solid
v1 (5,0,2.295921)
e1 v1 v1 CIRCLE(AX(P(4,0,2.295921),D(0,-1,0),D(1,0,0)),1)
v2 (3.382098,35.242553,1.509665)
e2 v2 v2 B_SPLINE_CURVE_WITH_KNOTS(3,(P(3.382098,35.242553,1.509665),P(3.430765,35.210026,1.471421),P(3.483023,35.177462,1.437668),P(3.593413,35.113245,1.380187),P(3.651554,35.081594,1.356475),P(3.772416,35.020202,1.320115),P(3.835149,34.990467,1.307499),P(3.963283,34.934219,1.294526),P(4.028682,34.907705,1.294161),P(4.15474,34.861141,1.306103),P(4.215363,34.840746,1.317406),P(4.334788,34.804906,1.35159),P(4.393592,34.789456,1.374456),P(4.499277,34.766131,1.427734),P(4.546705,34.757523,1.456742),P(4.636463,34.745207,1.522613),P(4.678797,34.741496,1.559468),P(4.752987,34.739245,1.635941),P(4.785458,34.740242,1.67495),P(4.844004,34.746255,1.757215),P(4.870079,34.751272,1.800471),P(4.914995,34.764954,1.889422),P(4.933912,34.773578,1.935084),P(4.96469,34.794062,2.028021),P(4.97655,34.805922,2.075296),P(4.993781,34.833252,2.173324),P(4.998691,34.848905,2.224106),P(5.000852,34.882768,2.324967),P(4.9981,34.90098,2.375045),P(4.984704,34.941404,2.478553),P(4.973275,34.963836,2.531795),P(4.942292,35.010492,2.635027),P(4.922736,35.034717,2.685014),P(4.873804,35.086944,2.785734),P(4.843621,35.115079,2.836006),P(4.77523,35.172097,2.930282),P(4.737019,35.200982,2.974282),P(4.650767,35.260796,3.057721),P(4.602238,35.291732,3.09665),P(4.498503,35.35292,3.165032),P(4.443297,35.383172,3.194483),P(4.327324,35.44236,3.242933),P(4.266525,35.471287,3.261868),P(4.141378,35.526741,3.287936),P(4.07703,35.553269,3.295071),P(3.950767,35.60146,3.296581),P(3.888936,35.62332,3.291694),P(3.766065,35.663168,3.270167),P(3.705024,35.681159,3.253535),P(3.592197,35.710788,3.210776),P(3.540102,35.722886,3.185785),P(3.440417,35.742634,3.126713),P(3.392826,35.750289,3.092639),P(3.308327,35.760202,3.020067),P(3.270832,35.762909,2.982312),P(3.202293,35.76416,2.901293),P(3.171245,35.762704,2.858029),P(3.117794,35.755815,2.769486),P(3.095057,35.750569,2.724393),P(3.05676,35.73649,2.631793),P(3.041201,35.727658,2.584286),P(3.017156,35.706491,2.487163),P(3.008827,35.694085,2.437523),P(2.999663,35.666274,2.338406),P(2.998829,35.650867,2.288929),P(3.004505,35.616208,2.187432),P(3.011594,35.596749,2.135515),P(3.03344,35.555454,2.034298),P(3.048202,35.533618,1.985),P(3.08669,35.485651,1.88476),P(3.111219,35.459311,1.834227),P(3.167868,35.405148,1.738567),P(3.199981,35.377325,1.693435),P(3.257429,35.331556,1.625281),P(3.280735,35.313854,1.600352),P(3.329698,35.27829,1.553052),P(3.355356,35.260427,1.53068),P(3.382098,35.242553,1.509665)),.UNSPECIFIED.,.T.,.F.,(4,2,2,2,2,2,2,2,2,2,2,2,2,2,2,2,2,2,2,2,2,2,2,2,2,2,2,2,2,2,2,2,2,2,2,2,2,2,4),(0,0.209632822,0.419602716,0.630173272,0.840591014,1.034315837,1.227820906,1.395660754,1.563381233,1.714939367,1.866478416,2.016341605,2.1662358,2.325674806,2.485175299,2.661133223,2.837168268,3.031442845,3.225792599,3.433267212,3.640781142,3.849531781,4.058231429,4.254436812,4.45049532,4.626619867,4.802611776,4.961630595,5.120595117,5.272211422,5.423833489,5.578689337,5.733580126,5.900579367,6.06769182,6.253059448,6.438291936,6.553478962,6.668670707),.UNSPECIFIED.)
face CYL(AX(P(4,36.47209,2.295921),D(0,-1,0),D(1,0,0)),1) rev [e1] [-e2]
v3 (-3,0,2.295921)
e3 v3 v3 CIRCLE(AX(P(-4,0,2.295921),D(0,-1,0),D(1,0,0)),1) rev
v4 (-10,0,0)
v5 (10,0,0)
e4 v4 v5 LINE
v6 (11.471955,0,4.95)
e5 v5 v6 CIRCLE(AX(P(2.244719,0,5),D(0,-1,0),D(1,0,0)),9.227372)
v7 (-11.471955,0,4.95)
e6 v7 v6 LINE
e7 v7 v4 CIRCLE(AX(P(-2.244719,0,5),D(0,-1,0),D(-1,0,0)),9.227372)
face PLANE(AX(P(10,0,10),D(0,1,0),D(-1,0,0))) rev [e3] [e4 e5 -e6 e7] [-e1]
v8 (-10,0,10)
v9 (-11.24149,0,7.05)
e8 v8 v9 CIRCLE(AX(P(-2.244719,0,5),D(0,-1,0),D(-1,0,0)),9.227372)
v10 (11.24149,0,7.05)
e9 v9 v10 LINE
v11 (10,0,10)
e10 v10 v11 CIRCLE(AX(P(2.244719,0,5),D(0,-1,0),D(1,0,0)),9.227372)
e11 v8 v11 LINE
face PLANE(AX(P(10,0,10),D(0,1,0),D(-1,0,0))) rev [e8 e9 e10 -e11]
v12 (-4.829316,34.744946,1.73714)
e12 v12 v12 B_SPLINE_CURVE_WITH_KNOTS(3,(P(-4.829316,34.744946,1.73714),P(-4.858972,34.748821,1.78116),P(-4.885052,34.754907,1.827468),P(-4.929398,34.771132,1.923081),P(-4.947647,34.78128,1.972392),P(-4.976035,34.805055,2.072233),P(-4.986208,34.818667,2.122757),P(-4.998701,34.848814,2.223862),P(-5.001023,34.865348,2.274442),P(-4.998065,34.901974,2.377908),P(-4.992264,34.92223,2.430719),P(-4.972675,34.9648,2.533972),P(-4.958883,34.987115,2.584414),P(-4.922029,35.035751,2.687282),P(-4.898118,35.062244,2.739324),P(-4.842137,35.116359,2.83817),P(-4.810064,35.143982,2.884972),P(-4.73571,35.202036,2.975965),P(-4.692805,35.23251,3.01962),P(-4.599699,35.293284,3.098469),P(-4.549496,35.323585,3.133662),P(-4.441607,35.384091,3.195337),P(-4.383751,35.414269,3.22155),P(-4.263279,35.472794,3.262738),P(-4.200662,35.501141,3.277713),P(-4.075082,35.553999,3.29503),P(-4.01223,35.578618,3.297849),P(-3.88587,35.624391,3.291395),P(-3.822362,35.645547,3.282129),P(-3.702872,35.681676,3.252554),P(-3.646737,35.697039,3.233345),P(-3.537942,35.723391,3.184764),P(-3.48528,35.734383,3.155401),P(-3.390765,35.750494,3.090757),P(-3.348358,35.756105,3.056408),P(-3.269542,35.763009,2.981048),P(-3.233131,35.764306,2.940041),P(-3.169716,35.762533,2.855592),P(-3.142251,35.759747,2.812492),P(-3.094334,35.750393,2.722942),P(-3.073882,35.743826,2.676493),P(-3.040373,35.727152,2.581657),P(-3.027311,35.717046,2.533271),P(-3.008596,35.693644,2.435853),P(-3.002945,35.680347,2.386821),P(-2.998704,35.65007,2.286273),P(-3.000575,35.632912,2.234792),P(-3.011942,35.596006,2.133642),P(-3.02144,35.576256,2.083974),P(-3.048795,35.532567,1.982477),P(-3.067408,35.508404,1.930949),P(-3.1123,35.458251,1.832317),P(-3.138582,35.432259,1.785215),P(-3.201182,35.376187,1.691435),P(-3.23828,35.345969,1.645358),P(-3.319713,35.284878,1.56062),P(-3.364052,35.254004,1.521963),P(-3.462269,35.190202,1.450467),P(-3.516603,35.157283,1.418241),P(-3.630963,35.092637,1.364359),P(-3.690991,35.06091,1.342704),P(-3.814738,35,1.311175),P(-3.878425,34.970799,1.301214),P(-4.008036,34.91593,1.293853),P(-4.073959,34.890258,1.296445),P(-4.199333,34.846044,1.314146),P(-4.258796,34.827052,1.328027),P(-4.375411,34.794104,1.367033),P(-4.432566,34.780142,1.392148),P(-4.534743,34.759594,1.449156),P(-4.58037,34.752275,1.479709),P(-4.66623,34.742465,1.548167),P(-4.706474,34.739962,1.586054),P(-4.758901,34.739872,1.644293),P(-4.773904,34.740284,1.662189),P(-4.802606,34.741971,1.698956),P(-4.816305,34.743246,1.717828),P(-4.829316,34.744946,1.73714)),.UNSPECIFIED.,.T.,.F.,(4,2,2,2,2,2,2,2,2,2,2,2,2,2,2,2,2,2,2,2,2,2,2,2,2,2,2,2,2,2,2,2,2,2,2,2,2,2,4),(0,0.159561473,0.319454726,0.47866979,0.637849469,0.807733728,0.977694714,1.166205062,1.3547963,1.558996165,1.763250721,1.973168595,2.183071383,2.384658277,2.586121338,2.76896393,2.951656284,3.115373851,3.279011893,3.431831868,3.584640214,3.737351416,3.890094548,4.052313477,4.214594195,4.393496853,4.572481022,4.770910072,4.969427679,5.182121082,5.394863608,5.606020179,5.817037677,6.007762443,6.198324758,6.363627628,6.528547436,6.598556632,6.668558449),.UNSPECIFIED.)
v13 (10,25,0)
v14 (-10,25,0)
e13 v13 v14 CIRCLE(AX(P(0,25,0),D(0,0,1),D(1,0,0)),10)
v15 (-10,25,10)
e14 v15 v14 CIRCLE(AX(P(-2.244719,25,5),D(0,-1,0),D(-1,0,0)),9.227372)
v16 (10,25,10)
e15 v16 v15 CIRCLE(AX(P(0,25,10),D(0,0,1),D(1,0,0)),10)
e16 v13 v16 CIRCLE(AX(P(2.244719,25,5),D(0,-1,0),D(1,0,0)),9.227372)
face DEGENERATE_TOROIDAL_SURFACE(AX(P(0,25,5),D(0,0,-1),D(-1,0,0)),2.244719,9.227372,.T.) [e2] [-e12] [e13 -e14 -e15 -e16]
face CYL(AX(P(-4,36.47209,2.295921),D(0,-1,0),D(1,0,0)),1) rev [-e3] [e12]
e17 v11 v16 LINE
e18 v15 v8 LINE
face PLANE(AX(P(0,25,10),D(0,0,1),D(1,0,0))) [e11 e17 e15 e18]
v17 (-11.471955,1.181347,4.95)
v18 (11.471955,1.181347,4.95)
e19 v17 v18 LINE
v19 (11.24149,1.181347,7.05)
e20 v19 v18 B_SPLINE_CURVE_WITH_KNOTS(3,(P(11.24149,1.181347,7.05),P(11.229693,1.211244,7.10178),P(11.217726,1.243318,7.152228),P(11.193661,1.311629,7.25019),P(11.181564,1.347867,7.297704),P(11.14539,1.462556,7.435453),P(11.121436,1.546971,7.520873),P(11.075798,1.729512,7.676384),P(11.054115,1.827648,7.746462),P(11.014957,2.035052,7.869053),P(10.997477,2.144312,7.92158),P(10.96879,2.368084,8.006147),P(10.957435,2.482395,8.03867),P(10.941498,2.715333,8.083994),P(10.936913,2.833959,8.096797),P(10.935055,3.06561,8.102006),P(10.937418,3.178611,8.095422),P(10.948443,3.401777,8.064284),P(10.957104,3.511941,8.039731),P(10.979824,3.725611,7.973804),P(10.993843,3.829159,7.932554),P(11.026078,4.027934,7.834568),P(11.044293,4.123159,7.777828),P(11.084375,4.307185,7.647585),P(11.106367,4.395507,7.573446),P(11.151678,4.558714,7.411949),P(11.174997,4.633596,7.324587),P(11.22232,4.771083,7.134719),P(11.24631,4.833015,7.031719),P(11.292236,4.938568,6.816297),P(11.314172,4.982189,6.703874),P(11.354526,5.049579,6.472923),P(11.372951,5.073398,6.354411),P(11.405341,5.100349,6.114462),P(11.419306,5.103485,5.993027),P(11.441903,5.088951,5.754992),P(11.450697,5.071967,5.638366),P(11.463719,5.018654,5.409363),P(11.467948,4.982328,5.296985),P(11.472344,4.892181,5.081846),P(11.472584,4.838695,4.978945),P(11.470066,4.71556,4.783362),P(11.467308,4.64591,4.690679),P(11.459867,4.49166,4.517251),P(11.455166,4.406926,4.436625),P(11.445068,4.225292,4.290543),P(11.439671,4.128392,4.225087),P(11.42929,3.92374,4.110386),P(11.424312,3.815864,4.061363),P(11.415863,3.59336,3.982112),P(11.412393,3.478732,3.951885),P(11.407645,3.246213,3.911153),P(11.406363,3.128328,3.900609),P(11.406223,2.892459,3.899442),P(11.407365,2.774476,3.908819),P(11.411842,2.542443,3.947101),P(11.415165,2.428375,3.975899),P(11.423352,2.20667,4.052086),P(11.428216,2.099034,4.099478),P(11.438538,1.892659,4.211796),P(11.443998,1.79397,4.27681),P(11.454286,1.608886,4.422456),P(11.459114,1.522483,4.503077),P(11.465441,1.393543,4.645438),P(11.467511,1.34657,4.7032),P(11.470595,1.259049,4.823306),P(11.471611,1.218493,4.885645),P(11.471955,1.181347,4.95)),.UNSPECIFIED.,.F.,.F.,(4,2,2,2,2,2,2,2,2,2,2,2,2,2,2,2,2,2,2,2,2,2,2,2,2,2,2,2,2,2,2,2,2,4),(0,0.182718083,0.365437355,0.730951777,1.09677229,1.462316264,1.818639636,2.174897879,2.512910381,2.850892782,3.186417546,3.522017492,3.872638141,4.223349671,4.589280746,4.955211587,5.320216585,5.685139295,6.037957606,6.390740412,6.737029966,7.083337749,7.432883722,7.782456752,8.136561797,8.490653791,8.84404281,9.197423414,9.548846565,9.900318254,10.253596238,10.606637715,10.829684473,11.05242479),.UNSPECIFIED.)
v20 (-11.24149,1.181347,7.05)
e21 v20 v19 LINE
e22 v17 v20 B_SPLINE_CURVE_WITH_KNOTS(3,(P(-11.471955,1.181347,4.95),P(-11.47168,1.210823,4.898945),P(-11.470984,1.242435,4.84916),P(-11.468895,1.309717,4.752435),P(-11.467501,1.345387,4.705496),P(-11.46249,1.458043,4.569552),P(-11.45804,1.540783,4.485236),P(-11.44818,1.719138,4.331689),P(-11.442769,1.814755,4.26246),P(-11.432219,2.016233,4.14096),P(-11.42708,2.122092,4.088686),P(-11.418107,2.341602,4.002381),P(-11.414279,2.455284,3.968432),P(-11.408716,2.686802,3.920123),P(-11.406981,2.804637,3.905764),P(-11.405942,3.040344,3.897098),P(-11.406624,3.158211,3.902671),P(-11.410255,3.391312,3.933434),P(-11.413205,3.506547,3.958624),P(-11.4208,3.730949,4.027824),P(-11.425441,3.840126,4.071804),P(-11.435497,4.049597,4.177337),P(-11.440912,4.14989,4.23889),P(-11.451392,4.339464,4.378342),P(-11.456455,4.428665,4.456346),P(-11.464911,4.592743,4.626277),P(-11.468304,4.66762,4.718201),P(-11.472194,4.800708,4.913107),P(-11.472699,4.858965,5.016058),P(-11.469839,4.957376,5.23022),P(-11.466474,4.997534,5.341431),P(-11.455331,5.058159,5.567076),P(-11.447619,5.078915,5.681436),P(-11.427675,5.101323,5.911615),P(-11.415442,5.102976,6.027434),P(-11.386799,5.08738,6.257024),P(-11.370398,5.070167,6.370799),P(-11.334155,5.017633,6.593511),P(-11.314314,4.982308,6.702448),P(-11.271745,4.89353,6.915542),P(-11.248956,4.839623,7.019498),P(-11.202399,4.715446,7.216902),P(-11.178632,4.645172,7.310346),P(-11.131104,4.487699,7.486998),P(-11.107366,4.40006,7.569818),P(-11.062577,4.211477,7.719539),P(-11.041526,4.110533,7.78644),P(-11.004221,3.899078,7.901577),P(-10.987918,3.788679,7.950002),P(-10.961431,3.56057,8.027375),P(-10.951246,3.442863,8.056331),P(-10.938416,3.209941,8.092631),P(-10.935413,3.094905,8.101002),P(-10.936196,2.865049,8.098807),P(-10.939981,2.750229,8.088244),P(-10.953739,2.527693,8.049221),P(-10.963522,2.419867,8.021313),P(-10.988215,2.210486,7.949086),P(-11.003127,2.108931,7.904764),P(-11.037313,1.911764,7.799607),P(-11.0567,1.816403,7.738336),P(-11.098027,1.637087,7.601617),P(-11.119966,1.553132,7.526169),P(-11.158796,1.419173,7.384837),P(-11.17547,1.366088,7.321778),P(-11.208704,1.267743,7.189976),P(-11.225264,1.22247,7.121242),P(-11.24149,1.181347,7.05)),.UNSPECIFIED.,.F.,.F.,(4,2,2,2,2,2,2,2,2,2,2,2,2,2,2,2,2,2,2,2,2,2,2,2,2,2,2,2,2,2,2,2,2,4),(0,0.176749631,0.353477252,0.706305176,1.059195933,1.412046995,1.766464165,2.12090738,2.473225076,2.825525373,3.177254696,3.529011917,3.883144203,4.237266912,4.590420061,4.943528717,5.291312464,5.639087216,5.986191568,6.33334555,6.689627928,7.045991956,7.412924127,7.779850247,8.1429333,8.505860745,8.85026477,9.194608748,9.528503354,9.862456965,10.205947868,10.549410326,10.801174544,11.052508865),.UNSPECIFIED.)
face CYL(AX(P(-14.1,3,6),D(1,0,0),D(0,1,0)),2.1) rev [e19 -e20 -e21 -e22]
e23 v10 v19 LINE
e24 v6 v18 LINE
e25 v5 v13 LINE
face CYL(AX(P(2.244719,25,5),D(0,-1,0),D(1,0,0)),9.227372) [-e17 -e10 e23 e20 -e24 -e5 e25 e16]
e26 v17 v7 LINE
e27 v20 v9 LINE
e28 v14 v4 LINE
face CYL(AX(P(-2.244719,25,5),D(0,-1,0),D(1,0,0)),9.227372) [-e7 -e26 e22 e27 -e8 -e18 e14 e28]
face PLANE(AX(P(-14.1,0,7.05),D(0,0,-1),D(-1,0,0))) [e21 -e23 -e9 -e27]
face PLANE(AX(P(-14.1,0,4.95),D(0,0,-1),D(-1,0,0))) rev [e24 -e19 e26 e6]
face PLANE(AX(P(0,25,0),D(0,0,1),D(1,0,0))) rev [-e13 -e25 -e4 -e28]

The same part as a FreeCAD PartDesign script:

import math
import FreeCAD as App
import Part
import Sketcher

V = App.Vector

doc = App.newDocument("Part")
body = doc.addObject("PartDesign::Body", "Body")

sketch1 = body.newObject("Sketcher::SketchObject", "Sketch")
sketch1.AttachmentSupport = (doc.getObject("XY_Plane"), [""])
sketch1.MapMode = "FlatFace"
sketch1.addGeometry([
    Part.LineSegment(V(-10, 0, 0), V(10, 0, 0)),
    Part.LineSegment(V(10, 0, 0), V(10, 25, 0)),
    Part.ArcOfCircle(Part.Circle(V(0, 25, 0), V(0, 0, 1), 10), math.radians(0), math.radians(180)),
    Part.LineSegment(V(-10, 25, 0), V(-10, 0, 0)),
], False)
sketch1.addConstraint([
    Sketcher.Constraint("Coincident", 0, 2, 1, 1),
    Sketcher.Constraint("Tangent", 1, 2, 2, 1),
    Sketcher.Constraint("Tangent", 2, 2, 3, 1),
    Sketcher.Constraint("Coincident", 3, 2, 0, 1),
    Sketcher.Constraint("Horizontal", 0),
    Sketcher.Constraint("Vertical", 1),
    Sketcher.Constraint("Vertical", 3),
    Sketcher.Constraint("Symmetric", 0, 2, 3, 2, -1, 1),
    Sketcher.Constraint("Radius", 2, 10.0),
    Sketcher.Constraint("DistanceY", 1, 1, 1, 2, 25.0),
])
pad1 = body.newObject("PartDesign::Pad", "Pad")
pad1.Profile = sketch1
pad1.Length = 10

sketch2 = body.newObject("Sketcher::SketchObject", "Sketch001")
sketch2.AttachmentSupport = (doc.getObject("XZ_Plane"), [""])
sketch2.MapMode = "FlatFace"
sketch2.addGeometry([
    Part.LineSegment(V(-10, 0, 0), V(-10, 10, 0)),
    Part.ArcOfCircle(Part.Circle(V(-2, 5, 0), V(0, 0, 1), 9), math.radians(147), math.radians(213)),
    Part.LineSegment(V(10, 10, 0), V(10, 0, 0)),
    Part.ArcOfCircle(Part.Circle(V(2, 5, 0), V(0, 0, 1), 9), math.radians(-33), math.radians(33)),
], False)
sketch2.addConstraint([
    Sketcher.Constraint("Coincident", 0, 1, 1, 2),
    Sketcher.Constraint("Coincident", 1, 1, 0, 2),
    Sketcher.Constraint("Coincident", 2, 1, 3, 2),
    Sketcher.Constraint("Coincident", 3, 1, 2, 2),
    Sketcher.Constraint("Vertical", 0),
    Sketcher.Constraint("Vertical", 2),
    Sketcher.Constraint("Equal", 1, 3),
    Sketcher.Constraint("Symmetric", 0, 1, 3, 1, -1, 1),
    Sketcher.Constraint("Symmetric", 1, 3, 3, 3, -2),
    Sketcher.Constraint("DistanceY", 0, 1, 0, 2, 10.0),
    Sketcher.Constraint("DistanceX", 0, 1, -1, 1, 10.0),
    Sketcher.Constraint("Radius", 1, 9.227372),
])
pad2 = body.newObject("PartDesign::Pad", "Pad001")
pad2.Profile = sketch2
pad2.Length = 25
pad2.Reversed = True

sketch3 = body.newObject("Sketcher::SketchObject", "Sketch002")
sketch3.AttachmentSupport = (doc.getObject("XZ_Plane"), [""])
sketch3.MapMode = "FlatFace"
sketch3.AttachmentOffset = App.Placement(V(0, 0, -25), App.Rotation())
sketch3.addGeometry([
    Part.LineSegment(V(10, 0, 0), V(10, 10, 0)),
    Part.ArcOfCircle(Part.Circle(V(2, 5, 0), V(0, 0, 1), 9), math.radians(-33), math.radians(33)),
], False)
sketch3.addConstraint([
    Sketcher.Constraint("Coincident", 0, 1, 1, 1),
    Sketcher.Constraint("Coincident", 1, 2, 0, 2),
    Sketcher.Constraint("Vertical", 0),
    Sketcher.Constraint("PointOnObject", 0, 1, -1),
    Sketcher.Constraint("DistanceY", 0, 1, 0, 2, 10.0),
    Sketcher.Constraint("DistanceX", -1, 1, 0, 1, 10.0),
    Sketcher.Constraint("Radius", 1, 9.227372),
])
revolution = body.newObject("PartDesign::Revolution", "Revolution")
revolution.Profile = sketch3
revolution.ReferenceAxis = (sketch3, ["V_Axis"])
revolution.Angle = 360

sketch4 = body.newObject("Sketcher::SketchObject", "Sketch003")
sketch4.AttachmentSupport = (doc.getObject("XZ_Plane"), [""])
sketch4.MapMode = "FlatFace"
sketch4.addGeometry([
    Part.Circle(V(4, 2.3, 0), V(0, 0, 1), 1),
    Part.Circle(V(-4, 2.3, 0), V(0, 0, 1), 1),
], False)
sketch4.addConstraint([
    Sketcher.Constraint("Equal", 0, 1),
    Sketcher.Constraint("Symmetric", 0, 3, 1, 3, -2),
    Sketcher.Constraint("Diameter", 0, 2.0),
    Sketcher.Constraint("DistanceX", -1, 1, 0, 3, 4.0),
    Sketcher.Constraint("DistanceY", -1, 1, 0, 3, 2.295921),
])
pocket1 = body.newObject("PartDesign::Pocket", "Pocket")
pocket1.Profile = sketch4
pocket1.Type = "ThroughAll"

sketch5 = body.newObject("Sketcher::SketchObject", "Sketch004")
sketch5.AttachmentSupport = (doc.getObject("YZ_Plane"), [""])
sketch5.MapMode = "FlatFace"
sketch5.addGeometry([
    Part.LineSegment(V(1.2, 5, 0), V(0, 5, 0)),
    Part.LineSegment(V(0, 5, 0), V(0, 7, 0)),
    Part.LineSegment(V(0, 7, 0), V(1.2, 7, 0)),
    Part.ArcOfCircle(Part.Circle(V(3, 6, 0), V(0, 0, 1), 2.1), math.radians(-150), math.radians(150)),
], False)
sketch5.addConstraint([
    Sketcher.Constraint("Coincident", 0, 2, 1, 1),
    Sketcher.Constraint("Coincident", 1, 2, 2, 1),
    Sketcher.Constraint("Coincident", 2, 2, 3, 2),
    Sketcher.Constraint("Coincident", 3, 1, 0, 1),
    Sketcher.Constraint("Horizontal", 0),
    Sketcher.Constraint("Vertical", 1),
    Sketcher.Constraint("Horizontal", 2),
    Sketcher.Constraint("PointOnObject", 0, 2, -2),
    Sketcher.Constraint("Vertical", 2, 2, 3, 1),
    Sketcher.Constraint("Radius", 3, 2.1),
    Sketcher.Constraint("DistanceY", 1, 1, 1, 2, 2.1),
    Sketcher.Constraint("DistanceX", -1, 1, 3, 3, 3.0),
    Sketcher.Constraint("DistanceY", -1, 1, 3, 3, 6.0),
])
pocket2 = body.newObject("PartDesign::Pocket", "Pocket001")
pocket2.Profile = sketch5
pocket2.Type = "ThroughAll"
pocket2.Midplane = True

doc.recompute()
